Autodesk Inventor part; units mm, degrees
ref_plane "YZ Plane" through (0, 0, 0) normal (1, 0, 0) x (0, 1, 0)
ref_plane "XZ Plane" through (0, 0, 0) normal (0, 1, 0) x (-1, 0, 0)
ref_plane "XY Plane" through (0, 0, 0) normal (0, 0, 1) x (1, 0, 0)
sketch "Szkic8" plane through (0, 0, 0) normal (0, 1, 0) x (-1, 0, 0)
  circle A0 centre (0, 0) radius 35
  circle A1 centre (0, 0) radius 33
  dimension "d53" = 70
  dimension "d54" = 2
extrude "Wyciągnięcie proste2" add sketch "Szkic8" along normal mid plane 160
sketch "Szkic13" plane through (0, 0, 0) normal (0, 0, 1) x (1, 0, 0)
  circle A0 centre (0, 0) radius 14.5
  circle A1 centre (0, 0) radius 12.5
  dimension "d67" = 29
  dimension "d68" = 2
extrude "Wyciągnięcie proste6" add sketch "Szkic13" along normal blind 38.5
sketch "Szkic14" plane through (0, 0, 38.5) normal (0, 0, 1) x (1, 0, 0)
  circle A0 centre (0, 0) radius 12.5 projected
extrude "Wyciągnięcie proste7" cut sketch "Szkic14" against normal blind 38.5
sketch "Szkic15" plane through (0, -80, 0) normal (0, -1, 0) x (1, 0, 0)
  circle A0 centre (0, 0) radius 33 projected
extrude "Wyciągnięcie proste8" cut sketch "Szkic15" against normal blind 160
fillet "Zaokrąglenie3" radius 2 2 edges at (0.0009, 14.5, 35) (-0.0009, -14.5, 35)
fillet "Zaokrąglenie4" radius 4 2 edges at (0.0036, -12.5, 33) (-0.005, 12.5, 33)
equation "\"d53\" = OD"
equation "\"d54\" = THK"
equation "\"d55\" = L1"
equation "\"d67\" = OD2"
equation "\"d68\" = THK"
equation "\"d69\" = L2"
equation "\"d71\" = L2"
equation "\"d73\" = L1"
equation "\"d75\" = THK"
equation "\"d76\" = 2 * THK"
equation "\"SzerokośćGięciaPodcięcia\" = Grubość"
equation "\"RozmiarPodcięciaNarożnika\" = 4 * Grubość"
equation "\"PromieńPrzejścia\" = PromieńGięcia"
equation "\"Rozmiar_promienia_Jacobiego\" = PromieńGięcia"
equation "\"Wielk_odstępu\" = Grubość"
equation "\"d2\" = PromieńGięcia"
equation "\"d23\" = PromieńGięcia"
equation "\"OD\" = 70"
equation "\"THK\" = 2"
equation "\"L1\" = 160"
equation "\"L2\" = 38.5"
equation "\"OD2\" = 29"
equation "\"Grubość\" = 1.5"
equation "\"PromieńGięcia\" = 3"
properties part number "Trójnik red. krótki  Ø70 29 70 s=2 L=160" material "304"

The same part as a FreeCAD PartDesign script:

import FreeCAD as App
import Part
import Sketcher
Q = App.Units.Quantity


def edges_at(feature, points):
    """Names of the edges that pass closest to the given points."""
    edges = feature.Shape.Edges
    near = lambda p: min(range(len(edges)), key=lambda i: edges[i].distToShape(Part.Vertex(*p))[0])
    return sorted({f"Edge{near(p) + 1}" for p in points})

doc = App.newDocument("Part")
params = doc.addObject("Spreadsheet::Sheet", "Params")
for row, (alias, value) in enumerate([
    ("sketch1_diameter", "70 mm"),
    ("sketch1_diameter2", "66 mm"),
    ("pad1_length", "160 mm"),
    ("sketch2_diameter", "29 mm"),
    ("sketch2_diameter2", "25 mm"),
    ("pad2_length", "38.5 mm"),
    ("sketch3_diameter", "25 mm"),
    ("pocket1_length", "38.5 mm"),
    ("sketch4_diameter", "66 mm"),
    ("pocket2_length", "160 mm"),
    ("fillet_radius", "2 mm"),
    ("fillet2_radius", "4 mm"),
], start=1):
    params.set(f"A{row}", alias)
    params.set(f"B{row}", "=" + value)
    params.setAlias(f"B{row}", alias)

body = doc.addObject("PartDesign::Body", "Body")

sketch1 = doc.addObject("Sketcher::SketchObject", "Sketch")
body.addObject(sketch1)
sketch1.AttachmentSupport = (doc.XZ_Plane, [""])
sketch1.MapMode = "FlatFace"
sketch1.addGeometry([
    Part.Circle(App.Vector(0, 0, 0), App.Vector(0, 0, 1), 35),
    Part.Circle(App.Vector(0, 0, 0), App.Vector(0, 0, 1), 33),
], False)
sketch1.addConstraint([
    Sketcher.Constraint("Coincident", 0, 3, -1, 1),
    Sketcher.Constraint("Coincident", 1, 3, -1, 1),
    Sketcher.Constraint("Diameter", 0, Q("70 mm")),
    Sketcher.Constraint("Diameter", 1, Q("66 mm")),
])
sketch1.setExpression("Constraints[2]", "Params.sketch1_diameter")
sketch1.setExpression("Constraints[3]", "Params.sketch1_diameter2")
pad1 = doc.addObject("PartDesign::Pad", "Pad")
body.addObject(pad1)
pad1.Profile = sketch1
pad1.setExpression("Length", "Params.pad1_length")
pad1.Midplane = True

sketch2 = doc.addObject("Sketcher::SketchObject", "Sketch001")
body.addObject(sketch2)
sketch2.AttachmentSupport = (doc.XY_Plane, [""])
sketch2.MapMode = "FlatFace"
sketch2.addGeometry([
    Part.Circle(App.Vector(0, 0, 0), App.Vector(0, 0, 1), 14),
    Part.Circle(App.Vector(0, 0, 0), App.Vector(0, 0, 1), 12),
], False)
sketch2.addConstraint([
    Sketcher.Constraint("Coincident", 0, 3, -1, 1),
    Sketcher.Constraint("Coincident", 1, 3, -1, 1),
    Sketcher.Constraint("Diameter", 0, Q("29 mm")),
    Sketcher.Constraint("Diameter", 1, Q("25 mm")),
])
sketch2.setExpression("Constraints[2]", "Params.sketch2_diameter")
sketch2.setExpression("Constraints[3]", "Params.sketch2_diameter2")
pad2 = doc.addObject("PartDesign::Pad", "Pad001")
body.addObject(pad2)
pad2.Profile = sketch2
pad2.setExpression("Length", "Params.pad2_length")

sketch3 = doc.addObject("Sketcher::SketchObject", "Sketch002")
body.addObject(sketch3)
sketch3.AttachmentSupport = (doc.XY_Plane, [""])
sketch3.MapMode = "FlatFace"
sketch3.AttachmentOffset = App.Placement(App.Vector(0, 0, 38.5), App.Rotation())
sketch3.addGeometry(Part.Circle(App.Vector(0, 0, 0), App.Vector(0, 0, 1), 12), False)
sketch3.addConstraint([
    Sketcher.Constraint("Coincident", 0, 3, -1, 1),
    Sketcher.Constraint("Diameter", 0, Q("25 mm")),
])
sketch3.setExpression("Constraints[1]", "Params.sketch3_diameter")
pocket1 = doc.addObject("PartDesign::Pocket", "Pocket")
body.addObject(pocket1)
pocket1.Profile = sketch3
pocket1.setExpression("Length", "Params.pocket1_length")

sketch4 = doc.addObject("Sketcher::SketchObject", "Sketch003")
body.addObject(sketch4)
sketch4.AttachmentSupport = (doc.XZ_Plane, [""])
sketch4.MapMode = "FlatFace"
sketch4.AttachmentOffset = App.Placement(App.Vector(0, 0, 80), App.Rotation())
sketch4.addGeometry(Part.Circle(App.Vector(0, 0, 0), App.Vector(0, 0, 1), 33), False)
sketch4.addConstraint([
    Sketcher.Constraint("Coincident", 0, 3, -1, 1),
    Sketcher.Constraint("Diameter", 0, Q("66 mm")),
])
sketch4.setExpression("Constraints[1]", "Params.sketch4_diameter")
pocket2 = doc.addObject("PartDesign::Pocket", "Pocket001")
body.addObject(pocket2)
pocket2.Profile = sketch4
pocket2.setExpression("Length", "Params.pocket2_length")
doc.recompute()

fillet = doc.addObject("PartDesign::Fillet", "Fillet")
body.addObject(fillet)
fillet.Base = (pocket2, edges_at(pocket2, [(0.001, 14.5, 35), (-0.001, -14.5, 35)]))
fillet.setExpression("Radius", "Params.fillet_radius")
doc.recompute()

fillet2 = doc.addObject("PartDesign::Fillet", "Fillet001")
body.addObject(fillet2)
fillet2.Base = (fillet, edges_at(fillet, [(0.004, -12.5, 33), (-0.005, 12.5, 33)]))
fillet2.setExpression("Radius", "Params.fillet2_radius")

doc.recompute()
